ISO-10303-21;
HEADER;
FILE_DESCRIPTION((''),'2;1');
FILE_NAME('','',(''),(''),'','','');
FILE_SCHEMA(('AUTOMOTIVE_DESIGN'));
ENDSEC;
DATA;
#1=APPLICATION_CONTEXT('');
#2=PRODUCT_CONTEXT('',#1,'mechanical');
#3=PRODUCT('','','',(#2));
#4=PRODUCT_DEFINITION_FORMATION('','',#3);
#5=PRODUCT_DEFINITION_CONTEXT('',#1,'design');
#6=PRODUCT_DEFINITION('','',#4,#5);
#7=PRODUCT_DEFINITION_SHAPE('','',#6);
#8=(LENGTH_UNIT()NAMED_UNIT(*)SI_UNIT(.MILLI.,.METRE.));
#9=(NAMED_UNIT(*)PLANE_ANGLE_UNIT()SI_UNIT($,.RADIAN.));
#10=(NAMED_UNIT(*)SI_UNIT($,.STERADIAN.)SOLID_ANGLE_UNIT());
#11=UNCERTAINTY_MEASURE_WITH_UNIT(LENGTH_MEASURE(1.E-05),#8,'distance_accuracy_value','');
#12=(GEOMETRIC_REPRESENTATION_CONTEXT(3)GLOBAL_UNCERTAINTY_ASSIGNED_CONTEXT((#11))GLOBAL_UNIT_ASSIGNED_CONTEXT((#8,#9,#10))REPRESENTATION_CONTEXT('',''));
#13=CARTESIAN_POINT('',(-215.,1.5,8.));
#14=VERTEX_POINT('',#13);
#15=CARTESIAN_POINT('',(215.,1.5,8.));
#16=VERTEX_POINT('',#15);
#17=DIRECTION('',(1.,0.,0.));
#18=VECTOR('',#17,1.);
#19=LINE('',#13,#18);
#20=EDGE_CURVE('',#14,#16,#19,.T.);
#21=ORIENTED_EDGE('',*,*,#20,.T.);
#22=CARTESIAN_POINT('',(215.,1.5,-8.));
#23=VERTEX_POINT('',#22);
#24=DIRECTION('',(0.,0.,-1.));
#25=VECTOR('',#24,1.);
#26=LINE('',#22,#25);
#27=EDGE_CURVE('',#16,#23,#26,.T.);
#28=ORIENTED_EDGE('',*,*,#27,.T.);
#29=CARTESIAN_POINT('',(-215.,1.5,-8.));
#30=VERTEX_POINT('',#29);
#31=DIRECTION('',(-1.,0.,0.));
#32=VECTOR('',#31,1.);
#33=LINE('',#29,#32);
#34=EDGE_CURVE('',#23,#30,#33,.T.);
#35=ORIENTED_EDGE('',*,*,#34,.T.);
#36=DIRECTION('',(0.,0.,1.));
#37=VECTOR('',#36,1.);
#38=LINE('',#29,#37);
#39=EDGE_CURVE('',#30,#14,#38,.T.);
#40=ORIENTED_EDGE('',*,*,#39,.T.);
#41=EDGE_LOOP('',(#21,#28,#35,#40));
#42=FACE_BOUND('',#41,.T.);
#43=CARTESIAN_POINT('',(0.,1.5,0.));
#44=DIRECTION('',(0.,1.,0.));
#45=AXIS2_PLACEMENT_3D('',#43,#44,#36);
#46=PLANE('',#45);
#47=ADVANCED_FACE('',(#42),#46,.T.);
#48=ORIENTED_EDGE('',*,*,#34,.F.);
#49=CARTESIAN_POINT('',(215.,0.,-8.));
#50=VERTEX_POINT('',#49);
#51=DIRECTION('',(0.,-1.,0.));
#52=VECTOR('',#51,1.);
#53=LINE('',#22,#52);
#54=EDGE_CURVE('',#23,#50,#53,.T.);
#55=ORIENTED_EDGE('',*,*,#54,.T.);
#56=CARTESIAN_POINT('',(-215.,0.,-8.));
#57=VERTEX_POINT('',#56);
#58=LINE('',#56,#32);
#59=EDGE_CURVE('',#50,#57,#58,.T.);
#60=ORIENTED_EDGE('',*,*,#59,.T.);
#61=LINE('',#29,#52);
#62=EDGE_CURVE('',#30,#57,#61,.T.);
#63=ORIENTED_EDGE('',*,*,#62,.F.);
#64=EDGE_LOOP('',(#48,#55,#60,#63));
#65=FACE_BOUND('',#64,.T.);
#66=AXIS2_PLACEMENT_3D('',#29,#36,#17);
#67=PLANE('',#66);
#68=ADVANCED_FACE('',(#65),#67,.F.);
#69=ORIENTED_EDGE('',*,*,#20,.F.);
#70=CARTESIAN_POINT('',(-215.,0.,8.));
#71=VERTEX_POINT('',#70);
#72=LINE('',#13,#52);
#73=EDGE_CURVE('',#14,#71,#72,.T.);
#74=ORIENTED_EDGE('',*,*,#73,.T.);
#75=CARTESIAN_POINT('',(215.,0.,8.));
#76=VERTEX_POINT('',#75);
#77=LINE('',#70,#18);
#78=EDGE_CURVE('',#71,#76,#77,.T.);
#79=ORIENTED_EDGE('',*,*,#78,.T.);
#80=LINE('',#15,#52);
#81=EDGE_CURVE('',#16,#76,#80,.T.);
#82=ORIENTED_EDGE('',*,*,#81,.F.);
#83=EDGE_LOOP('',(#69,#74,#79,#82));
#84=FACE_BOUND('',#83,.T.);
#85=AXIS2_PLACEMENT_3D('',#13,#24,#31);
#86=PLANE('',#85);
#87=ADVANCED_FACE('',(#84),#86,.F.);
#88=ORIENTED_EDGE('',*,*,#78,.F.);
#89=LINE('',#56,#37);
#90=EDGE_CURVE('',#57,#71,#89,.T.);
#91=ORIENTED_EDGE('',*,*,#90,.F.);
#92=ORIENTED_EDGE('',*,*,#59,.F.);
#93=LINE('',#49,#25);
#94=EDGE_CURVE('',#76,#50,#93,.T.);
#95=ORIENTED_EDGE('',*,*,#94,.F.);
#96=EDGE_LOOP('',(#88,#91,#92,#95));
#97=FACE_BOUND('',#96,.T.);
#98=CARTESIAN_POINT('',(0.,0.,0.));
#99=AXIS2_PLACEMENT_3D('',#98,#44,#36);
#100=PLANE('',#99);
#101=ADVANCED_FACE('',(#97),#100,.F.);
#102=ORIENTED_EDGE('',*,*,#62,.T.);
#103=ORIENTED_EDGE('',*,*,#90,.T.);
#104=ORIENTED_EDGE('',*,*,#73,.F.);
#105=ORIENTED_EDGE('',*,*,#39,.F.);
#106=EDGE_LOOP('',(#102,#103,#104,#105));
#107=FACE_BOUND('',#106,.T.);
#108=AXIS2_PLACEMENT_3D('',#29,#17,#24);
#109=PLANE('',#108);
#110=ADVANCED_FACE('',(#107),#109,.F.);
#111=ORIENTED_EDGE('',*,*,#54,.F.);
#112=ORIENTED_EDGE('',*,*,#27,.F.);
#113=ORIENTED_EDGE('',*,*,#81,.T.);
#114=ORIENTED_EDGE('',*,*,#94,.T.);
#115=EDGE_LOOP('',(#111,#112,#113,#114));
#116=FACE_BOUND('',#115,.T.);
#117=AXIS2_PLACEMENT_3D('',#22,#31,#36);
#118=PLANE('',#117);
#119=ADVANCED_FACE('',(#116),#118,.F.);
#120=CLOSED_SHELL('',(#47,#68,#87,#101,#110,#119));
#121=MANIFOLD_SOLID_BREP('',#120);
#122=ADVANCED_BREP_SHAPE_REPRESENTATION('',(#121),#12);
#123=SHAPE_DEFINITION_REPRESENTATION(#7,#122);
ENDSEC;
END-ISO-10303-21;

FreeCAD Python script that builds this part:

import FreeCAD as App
import Part
import Sketcher
from FreeCAD import Vector
Q = App.Units.Quantity


def add_polygon(sketch, points):
    """Adds a closed chain of lines whose ends are joined by coincident constraints."""
    first, n = sketch.GeometryCount, len(points)
    for a, b in zip(points, points[1:] + points[:1]):
        sketch.addGeometry(Part.LineSegment(App.Vector(*a, 0), App.Vector(*b, 0)), False)
    for i in range(n):
        sketch.addConstraint(Sketcher.Constraint("Coincident", first + i, 2, first + (i + 1) % n, 1))

doc = App.newDocument("Part")
body = doc.addObject("PartDesign::Body", "Body")

# Sketch on XZ plane
sketch1 = body.newObject("Sketcher::SketchObject", "Sketch")
sketch1.AttachmentSupport = (doc.getObject("XZ_Plane"), [""])
sketch1.MapMode = "FlatFace"
add_polygon(sketch1, [(-215, -8), (-215, 8), (215, 8), (215, -8)])  # lines 0-3
sketch1.addConstraint([
    Sketcher.Constraint("Vertical", 0),
    Sketcher.Constraint("Horizontal", 1),
    Sketcher.Constraint("Vertical", 2),
    Sketcher.Constraint("Horizontal", 3),
    Sketcher.Constraint("Symmetric", 0, 2, 2, 2, -1, 1),
    Sketcher.Constraint("DistanceX", 1, 1, 1, 2, Q("430 mm")),
    Sketcher.Constraint("DistanceY", 0, 1, 0, 2, Q("16 mm")),
])
pad1 = body.newObject("PartDesign::Pad", "Pad")
pad1.Profile = sketch1
pad1.Length = 1.5
pad1.Reversed = True

doc.recompute()
